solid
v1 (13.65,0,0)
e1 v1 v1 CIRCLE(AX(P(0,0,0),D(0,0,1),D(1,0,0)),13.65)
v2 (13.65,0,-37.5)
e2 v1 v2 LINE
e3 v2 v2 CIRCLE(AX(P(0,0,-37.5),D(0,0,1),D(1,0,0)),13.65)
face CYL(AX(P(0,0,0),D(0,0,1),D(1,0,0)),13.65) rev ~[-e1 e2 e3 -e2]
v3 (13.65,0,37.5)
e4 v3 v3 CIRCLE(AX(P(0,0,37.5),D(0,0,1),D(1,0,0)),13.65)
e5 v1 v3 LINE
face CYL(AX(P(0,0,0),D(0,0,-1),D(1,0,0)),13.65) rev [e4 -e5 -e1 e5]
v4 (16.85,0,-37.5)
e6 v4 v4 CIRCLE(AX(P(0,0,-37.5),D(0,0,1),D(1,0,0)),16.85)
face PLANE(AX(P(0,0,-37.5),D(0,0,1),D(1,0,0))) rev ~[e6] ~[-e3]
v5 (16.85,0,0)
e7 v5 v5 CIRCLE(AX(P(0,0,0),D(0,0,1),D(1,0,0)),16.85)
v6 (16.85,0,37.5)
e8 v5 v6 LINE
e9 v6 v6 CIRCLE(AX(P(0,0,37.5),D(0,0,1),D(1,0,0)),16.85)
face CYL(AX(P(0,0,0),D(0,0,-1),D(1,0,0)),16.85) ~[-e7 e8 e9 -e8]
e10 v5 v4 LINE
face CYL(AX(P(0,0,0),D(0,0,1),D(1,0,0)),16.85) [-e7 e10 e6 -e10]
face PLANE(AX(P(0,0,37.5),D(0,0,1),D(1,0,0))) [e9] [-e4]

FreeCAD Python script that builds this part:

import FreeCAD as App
import Part
import Sketcher

doc = App.newDocument("Part")
body = doc.addObject("PartDesign::Body", "Body")

# Sketch on XY plane
sketch1 = doc.addObject("Sketcher::SketchObject", "Sketch")
body.addObject(sketch1)
sketch1.AttachmentSupport = (doc.XY_Plane, [""])
sketch1.MapMode = "FlatFace"
sketch1.addGeometry([
    Part.Circle(App.Vector(0, 0, 0), App.Vector(0, 0, 1), 16.85),
    Part.Circle(App.Vector(0, 0, 0), App.Vector(0, 0, 1), 13.65),
], False)
sketch1.addConstraint([
    Sketcher.Constraint("Coincident", 0, 3, -1, 1),
    Sketcher.Constraint("Coincident", 1, 3, -1, 1),
    Sketcher.Constraint("Diameter", 0, 33.7),
    Sketcher.Constraint("Diameter", 1, 27.3),
])
pad1 = doc.addObject("PartDesign::Pad", "Pad")
body.addObject(pad1)
pad1.Profile = sketch1
pad1.Length = 75
pad1.Midplane = True

doc.recompute()
